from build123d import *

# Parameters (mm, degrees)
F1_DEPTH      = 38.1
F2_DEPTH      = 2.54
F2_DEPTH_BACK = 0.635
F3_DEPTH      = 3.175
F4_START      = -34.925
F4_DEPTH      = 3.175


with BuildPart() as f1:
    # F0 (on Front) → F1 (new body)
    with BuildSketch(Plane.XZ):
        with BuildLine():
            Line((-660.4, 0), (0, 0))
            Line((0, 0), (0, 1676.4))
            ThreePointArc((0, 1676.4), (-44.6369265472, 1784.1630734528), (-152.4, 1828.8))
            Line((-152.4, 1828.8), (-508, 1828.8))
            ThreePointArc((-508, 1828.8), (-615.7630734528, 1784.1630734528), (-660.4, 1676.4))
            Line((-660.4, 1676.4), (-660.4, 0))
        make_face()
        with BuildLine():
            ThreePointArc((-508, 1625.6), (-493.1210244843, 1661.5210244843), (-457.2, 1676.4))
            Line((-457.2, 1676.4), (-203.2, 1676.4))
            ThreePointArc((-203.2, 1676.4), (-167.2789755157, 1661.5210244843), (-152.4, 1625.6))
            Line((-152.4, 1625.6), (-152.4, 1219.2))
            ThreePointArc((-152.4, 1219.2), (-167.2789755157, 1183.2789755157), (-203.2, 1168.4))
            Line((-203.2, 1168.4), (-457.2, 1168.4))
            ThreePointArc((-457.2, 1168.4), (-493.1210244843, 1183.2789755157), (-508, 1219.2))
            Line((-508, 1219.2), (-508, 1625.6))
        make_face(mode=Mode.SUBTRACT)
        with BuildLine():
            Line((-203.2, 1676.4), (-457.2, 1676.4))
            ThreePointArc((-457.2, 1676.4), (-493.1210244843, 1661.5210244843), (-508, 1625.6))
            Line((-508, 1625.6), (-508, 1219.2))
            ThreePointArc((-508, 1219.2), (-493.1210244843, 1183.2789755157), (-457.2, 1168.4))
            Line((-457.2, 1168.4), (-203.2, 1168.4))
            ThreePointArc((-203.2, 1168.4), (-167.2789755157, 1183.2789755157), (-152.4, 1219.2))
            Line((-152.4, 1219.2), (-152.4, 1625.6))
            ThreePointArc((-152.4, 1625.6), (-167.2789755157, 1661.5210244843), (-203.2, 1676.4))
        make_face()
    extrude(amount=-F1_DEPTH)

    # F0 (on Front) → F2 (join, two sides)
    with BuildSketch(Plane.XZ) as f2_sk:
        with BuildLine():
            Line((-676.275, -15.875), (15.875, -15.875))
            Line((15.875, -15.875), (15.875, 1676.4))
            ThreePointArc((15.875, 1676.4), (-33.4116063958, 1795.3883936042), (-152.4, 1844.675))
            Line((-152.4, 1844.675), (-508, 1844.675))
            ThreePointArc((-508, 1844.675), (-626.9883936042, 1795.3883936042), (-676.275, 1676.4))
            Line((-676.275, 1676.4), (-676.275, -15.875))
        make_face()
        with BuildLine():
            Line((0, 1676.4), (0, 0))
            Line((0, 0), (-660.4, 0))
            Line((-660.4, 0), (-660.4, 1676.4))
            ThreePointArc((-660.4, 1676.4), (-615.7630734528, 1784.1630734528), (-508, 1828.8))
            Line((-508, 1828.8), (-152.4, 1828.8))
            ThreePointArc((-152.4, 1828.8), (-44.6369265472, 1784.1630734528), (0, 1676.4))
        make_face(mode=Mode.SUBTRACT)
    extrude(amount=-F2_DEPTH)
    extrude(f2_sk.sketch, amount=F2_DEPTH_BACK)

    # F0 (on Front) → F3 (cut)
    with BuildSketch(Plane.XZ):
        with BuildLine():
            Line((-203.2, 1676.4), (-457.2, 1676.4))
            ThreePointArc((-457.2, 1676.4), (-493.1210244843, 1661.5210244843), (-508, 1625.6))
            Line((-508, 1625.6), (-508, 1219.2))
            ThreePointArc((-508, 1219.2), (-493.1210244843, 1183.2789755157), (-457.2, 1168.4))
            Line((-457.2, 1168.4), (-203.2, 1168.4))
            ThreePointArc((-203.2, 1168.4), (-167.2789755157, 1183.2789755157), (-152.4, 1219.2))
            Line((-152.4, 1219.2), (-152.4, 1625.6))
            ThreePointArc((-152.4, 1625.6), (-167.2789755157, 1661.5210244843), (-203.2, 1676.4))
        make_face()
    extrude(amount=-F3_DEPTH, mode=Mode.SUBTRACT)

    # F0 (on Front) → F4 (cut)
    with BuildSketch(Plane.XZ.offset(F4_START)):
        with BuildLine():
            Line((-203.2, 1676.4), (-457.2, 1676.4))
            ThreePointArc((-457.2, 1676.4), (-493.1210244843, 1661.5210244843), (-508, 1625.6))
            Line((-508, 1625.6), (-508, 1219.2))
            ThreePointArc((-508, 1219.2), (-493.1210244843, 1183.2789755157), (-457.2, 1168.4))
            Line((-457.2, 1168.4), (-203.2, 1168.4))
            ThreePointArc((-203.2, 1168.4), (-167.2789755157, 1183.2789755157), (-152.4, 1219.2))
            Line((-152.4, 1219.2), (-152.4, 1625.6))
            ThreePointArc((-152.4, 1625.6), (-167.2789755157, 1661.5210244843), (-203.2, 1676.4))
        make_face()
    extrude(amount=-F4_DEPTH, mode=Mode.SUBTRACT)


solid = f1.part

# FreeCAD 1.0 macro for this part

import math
import FreeCAD as App
import Part
import Sketcher
from FreeCAD import Vector
Q = App.Units.Quantity

doc = App.newDocument("Part")
body = doc.addObject("PartDesign::Body", "Body")

sketch1 = doc.addObject("Sketcher::SketchObject", "Sketch")
body.addObject(sketch1)
sketch1.AttachmentSupport = (doc.XZ_Plane, [""])
sketch1.MapMode = "FlatFace"
sketch1.addGeometry([
    Part.LineSegment(Vector(-660, 0, 0), Vector(0, 0, 0)),
    Part.LineSegment(Vector(0, 0, 0), Vector(0, 1676, 0)),
    Part.ArcOfCircle(Part.Circle(Vector(-152, 1676, 0), Vector(0, 0, 1), 152), math.radians(0), math.radians(90)),
    Part.LineSegment(Vector(-152, 1829, 0), Vector(-508, 1829, 0)),
    Part.ArcOfCircle(Part.Circle(Vector(-508, 1676, 0), Vector(0, 0, 1), 152), math.radians(90), math.radians(180)),
    Part.LineSegment(Vector(-660, 1676, 0), Vector(-660, 0, 0)),
], False)
sketch1.addConstraint([
    Sketcher.Constraint("Coincident", 0, 2, 1, 1),
    Sketcher.Constraint("Tangent", 1, 2, 2, 1),
    Sketcher.Constraint("Tangent", 2, 2, 3, 1),
    Sketcher.Constraint("Tangent", 3, 2, 4, 1),
    Sketcher.Constraint("Tangent", 4, 2, 5, 1),
    Sketcher.Constraint("Coincident", 5, 2, 0, 1),
    Sketcher.Constraint("Horizontal", 0),
    Sketcher.Constraint("Vertical", 1),
    Sketcher.Constraint("Horizontal", 3),
    Sketcher.Constraint("Vertical", 5),
    Sketcher.Constraint("Coincident", 0, 2, -1, 1),
    Sketcher.Constraint("Equal", 2, 4),
    Sketcher.Constraint("Radius", 2, Q("6 in")),
    Sketcher.Constraint("DistanceX", 0, 1, 0, 2, Q("26 in")),
    Sketcher.Constraint("DistanceY", 1, 1, 1, 2, Q("66 in")),
])
pad1 = doc.addObject("PartDesign::Pad", "Pad")
body.addObject(pad1)
pad1.Profile = sketch1
pad1.Length = Q("1.5 in")
pad1.Reversed = True

sketch2 = doc.addObject("Sketcher::SketchObject", "Sketch001")
body.addObject(sketch2)
sketch2.AttachmentSupport = (doc.XZ_Plane, [""])
sketch2.MapMode = "FlatFace"
sketch2.addGeometry([
    Part.LineSegment(Vector(-676, -16, 0), Vector(16, -16, 0)),
    Part.LineSegment(Vector(16, -16, 0), Vector(16, 1676, 0)),
    Part.ArcOfCircle(Part.Circle(Vector(-152, 1676, 0), Vector(0, 0, 1), 168), math.radians(0), math.radians(90)),
    Part.LineSegment(Vector(-152, 1845, 0), Vector(-508, 1845, 0)),
    Part.ArcOfCircle(Part.Circle(Vector(-508, 1676, 0), Vector(0, 0, 1), 168), math.radians(90), math.radians(180)),
    Part.LineSegment(Vector(-676, 1676, 0), Vector(-676, -16, 0)),
    Part.ArcOfCircle(Part.Circle(Vector(-152, 1676, 0), Vector(0, 0, 1), 152), math.radians(0), math.radians(90)),
    Part.LineSegment(Vector(0, 1676, 0), Vector(0, 0, 0)),
    Part.LineSegment(Vector(0, 0, 0), Vector(-660, 0, 0)),
    Part.LineSegment(Vector(-660, 0, 0), Vector(-660, 1676, 0)),
    Part.ArcOfCircle(Part.Circle(Vector(-508, 1676, 0), Vector(0, 0, 1), 152), math.radians(90), math.radians(180)),
    Part.LineSegment(Vector(-508, 1829, 0), Vector(-152, 1829, 0)),
], False)
sketch2.addConstraint([
    Sketcher.Constraint("Coincident", 0, 2, 1, 1),
    Sketcher.Constraint("Tangent", 1, 2, 2, 1),
    Sketcher.Constraint("Tangent", 2, 2, 3, 1),
    Sketcher.Constraint("Tangent", 3, 2, 4, 1),
    Sketcher.Constraint("Tangent", 4, 2, 5, 1),
    Sketcher.Constraint("Coincident", 5, 2, 0, 1),
    Sketcher.Constraint("Tangent", 6, 1, 7, 1),
    Sketcher.Constraint("Coincident", 7, 2, 8, 1),
    Sketcher.Constraint("Coincident", 8, 2, 9, 1),
    Sketcher.Constraint("Tangent", 9, 2, 10, 2),
    Sketcher.Constraint("Tangent", 10, 1, 11, 1),
    Sketcher.Constraint("Tangent", 11, 2, 6, 2),
    Sketcher.Constraint("Horizontal", 0),
    Sketcher.Constraint("Vertical", 1),
    Sketcher.Constraint("Horizontal", 3),
    Sketcher.Constraint("Vertical", 5),
    Sketcher.Constraint("Vertical", 7),
    Sketcher.Constraint("Horizontal", 8),
    Sketcher.Constraint("Vertical", 9),
    Sketcher.Constraint("Horizontal", 11),
    Sketcher.Constraint("Coincident", 7, 2, -1, 1),
    Sketcher.Constraint("Coincident", 6, 3, 2, 3),
    Sketcher.Constraint("Coincident", 10, 3, 4, 3),
    Sketcher.Constraint("Equal", 2, 4),
    Sketcher.Constraint("Radius", 6, Q("6 in")),
    Sketcher.Constraint("DistanceX", 3, 2, 3, 1, Q("14 in")),
    Sketcher.Constraint("DistanceY", 7, 2, 7, 1, Q("66 in")),
    Sketcher.Constraint("Radius", 2, Q("6.625 in")),
    Sketcher.Constraint("DistanceY", 1, 1, 1, 2, Q("66.625 in")),
])
pad2 = doc.addObject("PartDesign::Pad", "Pad001")
body.addObject(pad2)
pad2.Profile = sketch2
pad2.Type = "TwoLengths"
pad2.Length = Q("0.1 in")
pad2.Length2 = Q("0.025 in")
pad2.Reversed = True

sketch3 = doc.addObject("Sketcher::SketchObject", "Sketch002")
body.addObject(sketch3)
sketch3.AttachmentSupport = (doc.XZ_Plane, [""])
sketch3.MapMode = "FlatFace"
sketch3.addGeometry([
    Part.LineSegment(Vector(-203, 1676, 0), Vector(-457, 1676, 0)),
    Part.ArcOfCircle(Part.Circle(Vector(-457, 1626, 0), Vector(0, 0, 1), 51), math.radians(90), math.radians(180)),
    Part.LineSegment(Vector(-508, 1626, 0), Vector(-508, 1219, 0)),
    Part.ArcOfCircle(Part.Circle(Vector(-457, 1219, 0), Vector(0, 0, 1), 51), math.radians(180), math.radians(270)),
    Part.LineSegment(Vector(-457, 1168, 0), Vector(-203, 1168, 0)),
    Part.ArcOfCircle(Part.Circle(Vector(-203, 1219, 0), Vector(0, 0, 1), 51), math.radians(-90), math.radians(0)),
    Part.LineSegment(Vector(-152, 1219, 0), Vector(-152, 1626, 0)),
    Part.ArcOfCircle(Part.Circle(Vector(-203, 1626, 0), Vector(0, 0, 1), 51), math.radians(0), math.radians(90)),
], False)
sketch3.addConstraint([
    Sketcher.Constraint("Tangent", 0, 2, 1, 1),
    Sketcher.Constraint("Tangent", 1, 2, 2, 1),
    Sketcher.Constraint("Tangent", 2, 2, 3, 1),
    Sketcher.Constraint("Tangent", 3, 2, 4, 1),
    Sketcher.Constraint("Tangent", 4, 2, 5, 1),
    Sketcher.Constraint("Tangent", 5, 2, 6, 1),
    Sketcher.Constraint("Tangent", 6, 2, 7, 1),
    Sketcher.Constraint("Tangent", 7, 2, 0, 1),
    Sketcher.Constraint("Horizontal", 0),
    Sketcher.Constraint("Vertical", 2),
    Sketcher.Constraint("Horizontal", 4),
    Sketcher.Constraint("Vertical", 6),
    Sketcher.Constraint("Equal", 1, 3),
    Sketcher.Constraint("Equal", 3, 5),
    Sketcher.Constraint("Equal", 5, 7),
    Sketcher.Constraint("Radius", 1, Q("2 in")),
    Sketcher.Constraint("DistanceX", 0, 2, 0, 1, Q("10 in")),
    Sketcher.Constraint("DistanceY", 2, 2, 2, 1, Q("16 in")),
    Sketcher.Constraint("DistanceX", 1, 3, -1, 1, Q("18 in")),
    Sketcher.Constraint("DistanceY", -1, 1, 1, 3, Q("64 in")),
])
pocket1 = doc.addObject("PartDesign::Pocket", "Pocket")
body.addObject(pocket1)
pocket1.Profile = sketch3
pocket1.Length = Q("0.125 in")

sketch4 = doc.addObject("Sketcher::SketchObject", "Sketch003")
body.addObject(sketch4)
sketch4.AttachmentSupport = (doc.XZ_Plane, [""])
sketch4.MapMode = "FlatFace"
sketch4.AttachmentOffset = App.Placement(Vector(0, 0, -1.375 * 25.4), App.Rotation())
sketch4.addGeometry([
    Part.LineSegment(Vector(-203, 1676, 0), Vector(-457, 1676, 0)),
    Part.ArcOfCircle(Part.Circle(Vector(-457, 1626, 0), Vector(0, 0, 1), 51), math.radians(90), math.radians(180)),
    Part.LineSegment(Vector(-508, 1626, 0), Vector(-508, 1219, 0)),
    Part.ArcOfCircle(Part.Circle(Vector(-457, 1219, 0), Vector(0, 0, 1), 51), math.radians(180), math.radians(270)),
    Part.LineSegment(Vector(-457, 1168, 0), Vector(-203, 1168, 0)),
    Part.ArcOfCircle(Part.Circle(Vector(-203, 1219, 0), Vector(0, 0, 1), 51), math.radians(-90), math.radians(0)),
    Part.LineSegment(Vector(-152, 1219, 0), Vector(-152, 1626, 0)),
    Part.ArcOfCircle(Part.Circle(Vector(-203, 1626, 0), Vector(0, 0, 1), 51), math.radians(0), math.radians(90)),
], False)
sketch4.addConstraint([
    Sketcher.Constraint("Tangent", 0, 2, 1, 1),
    Sketcher.Constraint("Tangent", 1, 2, 2, 1),
    Sketcher.Constraint("Tangent", 2, 2, 3, 1),
    Sketcher.Constraint("Tangent", 3, 2, 4, 1),
    Sketcher.Constraint("Tangent", 4, 2, 5, 1),
    Sketcher.Constraint("Tangent", 5, 2, 6, 1),
    Sketcher.Constraint("Tangent", 6, 2, 7, 1),
    Sketcher.Constraint("Tangent", 7, 2, 0, 1),
    Sketcher.Constraint("Horizontal", 0),
    Sketcher.Constraint("Vertical", 2),
    Sketcher.Constraint("Horizontal", 4),
    Sketcher.Constraint("Vertical", 6),
    Sketcher.Constraint("Equal", 1, 3),
    Sketcher.Constraint("Equal", 3, 5),
    Sketcher.Constraint("Equal", 5, 7),
    Sketcher.Constraint("Radius", 1, Q("2 in")),
    Sketcher.Constraint("DistanceX", 0, 2, 0, 1, Q("10 in")),
    Sketcher.Constraint("DistanceY", 2, 2, 2, 1, Q("16 in")),
    Sketcher.Constraint("DistanceX", 1, 3, -1, 1, Q("18 in")),
    Sketcher.Constraint("DistanceY", -1, 1, 1, 3, Q("64 in")),
])
pocket2 = doc.addObject("PartDesign::Pocket", "Pocket001")
body.addObject(pocket2)
pocket2.Profile = sketch4
pocket2.Length = Q("0.125 in")

doc.recompute()
